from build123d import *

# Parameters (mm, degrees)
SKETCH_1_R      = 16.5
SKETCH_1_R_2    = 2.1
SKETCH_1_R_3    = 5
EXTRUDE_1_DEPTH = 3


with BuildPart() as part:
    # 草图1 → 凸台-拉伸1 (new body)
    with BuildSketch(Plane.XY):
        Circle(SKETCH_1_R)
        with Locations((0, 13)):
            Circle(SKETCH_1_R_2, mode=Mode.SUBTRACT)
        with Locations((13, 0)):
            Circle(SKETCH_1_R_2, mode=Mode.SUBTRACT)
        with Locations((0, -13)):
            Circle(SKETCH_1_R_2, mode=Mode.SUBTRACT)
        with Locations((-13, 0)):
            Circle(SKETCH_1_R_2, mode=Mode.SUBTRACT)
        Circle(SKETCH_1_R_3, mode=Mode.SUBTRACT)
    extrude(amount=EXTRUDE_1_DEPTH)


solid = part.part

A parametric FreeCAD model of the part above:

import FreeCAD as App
import Part
import Sketcher

V = App.Vector

doc = App.newDocument("Part")
body = doc.addObject("PartDesign::Body", "Body")

# Sketch on XY plane
sketch1 = body.newObject("Sketcher::SketchObject", "Sketch")
sketch1.AttachmentSupport = (doc.getObject("XY_Plane"), [""])
sketch1.MapMode = "FlatFace"
sketch1.addGeometry([
    Part.Circle(V(0, 0, 0), V(0, 0, 1), 16.5),  # 0
    Part.Circle(V(0, -13, 0), V(0, 0, 1), 2.1),  # 1
    Part.Circle(V(0, 0, 0), V(0, 0, 1), 5),  # 2
    Part.Circle(V(-13, 0, 0), V(0, 0, 1), 2.1),  # 3
    Part.Circle(V(0, 13, 0), V(0, 0, 1), 2.1),  # 4
    Part.Circle(V(13, 0, 0), V(0, 0, 1), 2.1),  # 5
], False)
sketch1.addConstraint([
    Sketcher.Constraint("Coincident", 0, 3, -1, 1),
    Sketcher.Constraint("Coincident", 2, 3, -1, 1),
    Sketcher.Constraint("Equal", 1, 3),
    Sketcher.Constraint("Equal", 3, 4),
    Sketcher.Constraint("Equal", 4, 5),
    Sketcher.Constraint("Symmetric", 1, 3, 4, 3, -1, 1),
    Sketcher.Constraint("Symmetric", 3, 3, 5, 3, -1, 1),
    Sketcher.Constraint("PointOnObject", 1, 3, -2),
    Sketcher.Constraint("PointOnObject", 3, 3, -1),
    Sketcher.Constraint("Diameter", 0, 33.0),
    Sketcher.Constraint("Diameter", 2, 10.0),
    Sketcher.Constraint("Diameter", 1, 4.2),
    Sketcher.Constraint("DistanceY", 1, 3, -1, 1, 13.0),
    Sketcher.Constraint("DistanceX", 3, 3, -1, 1, 13.0),
])
pad1 = body.newObject("PartDesign::Pad", "Pad")
pad1.Profile = sketch1
pad1.Length = 3

doc.recompute()
